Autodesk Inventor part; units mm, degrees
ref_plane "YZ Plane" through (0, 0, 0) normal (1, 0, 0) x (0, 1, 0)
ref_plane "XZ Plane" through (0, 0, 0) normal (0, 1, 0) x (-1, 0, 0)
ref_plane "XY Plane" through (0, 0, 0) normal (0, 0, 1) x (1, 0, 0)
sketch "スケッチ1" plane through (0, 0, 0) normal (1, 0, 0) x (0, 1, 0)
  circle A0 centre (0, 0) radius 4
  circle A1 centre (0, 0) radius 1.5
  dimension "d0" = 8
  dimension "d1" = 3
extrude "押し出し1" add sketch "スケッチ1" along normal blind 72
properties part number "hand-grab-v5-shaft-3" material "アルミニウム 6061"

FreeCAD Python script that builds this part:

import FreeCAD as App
import Part
import Sketcher
Q = App.Units.Quantity

doc = App.newDocument("Part")
body = doc.addObject("PartDesign::Body", "Body")

# Sketch on YZ plane
sketch1 = body.newObject("Sketcher::SketchObject", "Sketch")
sketch1.AttachmentSupport = (doc.getObject("YZ_Plane"), [""])
sketch1.MapMode = "FlatFace"
sketch1.addGeometry([
    Part.Circle(App.Vector(0, 0, 0), App.Vector(0, 0, 1), 4),
    Part.Circle(App.Vector(0, 0, 0), App.Vector(0, 0, 1), 1.5),
], False)
sketch1.addConstraint([
    Sketcher.Constraint("Coincident", 0, 3, -1, 1),
    Sketcher.Constraint("Coincident", 1, 3, -1, 1),
    Sketcher.Constraint("Diameter", 0, Q("8 mm")),
    Sketcher.Constraint("Diameter", 1, Q("3 mm")),
])
pad1 = body.newObject("PartDesign::Pad", "Pad")
pad1.Profile = sketch1
pad1.Length = 72

doc.recompute()
